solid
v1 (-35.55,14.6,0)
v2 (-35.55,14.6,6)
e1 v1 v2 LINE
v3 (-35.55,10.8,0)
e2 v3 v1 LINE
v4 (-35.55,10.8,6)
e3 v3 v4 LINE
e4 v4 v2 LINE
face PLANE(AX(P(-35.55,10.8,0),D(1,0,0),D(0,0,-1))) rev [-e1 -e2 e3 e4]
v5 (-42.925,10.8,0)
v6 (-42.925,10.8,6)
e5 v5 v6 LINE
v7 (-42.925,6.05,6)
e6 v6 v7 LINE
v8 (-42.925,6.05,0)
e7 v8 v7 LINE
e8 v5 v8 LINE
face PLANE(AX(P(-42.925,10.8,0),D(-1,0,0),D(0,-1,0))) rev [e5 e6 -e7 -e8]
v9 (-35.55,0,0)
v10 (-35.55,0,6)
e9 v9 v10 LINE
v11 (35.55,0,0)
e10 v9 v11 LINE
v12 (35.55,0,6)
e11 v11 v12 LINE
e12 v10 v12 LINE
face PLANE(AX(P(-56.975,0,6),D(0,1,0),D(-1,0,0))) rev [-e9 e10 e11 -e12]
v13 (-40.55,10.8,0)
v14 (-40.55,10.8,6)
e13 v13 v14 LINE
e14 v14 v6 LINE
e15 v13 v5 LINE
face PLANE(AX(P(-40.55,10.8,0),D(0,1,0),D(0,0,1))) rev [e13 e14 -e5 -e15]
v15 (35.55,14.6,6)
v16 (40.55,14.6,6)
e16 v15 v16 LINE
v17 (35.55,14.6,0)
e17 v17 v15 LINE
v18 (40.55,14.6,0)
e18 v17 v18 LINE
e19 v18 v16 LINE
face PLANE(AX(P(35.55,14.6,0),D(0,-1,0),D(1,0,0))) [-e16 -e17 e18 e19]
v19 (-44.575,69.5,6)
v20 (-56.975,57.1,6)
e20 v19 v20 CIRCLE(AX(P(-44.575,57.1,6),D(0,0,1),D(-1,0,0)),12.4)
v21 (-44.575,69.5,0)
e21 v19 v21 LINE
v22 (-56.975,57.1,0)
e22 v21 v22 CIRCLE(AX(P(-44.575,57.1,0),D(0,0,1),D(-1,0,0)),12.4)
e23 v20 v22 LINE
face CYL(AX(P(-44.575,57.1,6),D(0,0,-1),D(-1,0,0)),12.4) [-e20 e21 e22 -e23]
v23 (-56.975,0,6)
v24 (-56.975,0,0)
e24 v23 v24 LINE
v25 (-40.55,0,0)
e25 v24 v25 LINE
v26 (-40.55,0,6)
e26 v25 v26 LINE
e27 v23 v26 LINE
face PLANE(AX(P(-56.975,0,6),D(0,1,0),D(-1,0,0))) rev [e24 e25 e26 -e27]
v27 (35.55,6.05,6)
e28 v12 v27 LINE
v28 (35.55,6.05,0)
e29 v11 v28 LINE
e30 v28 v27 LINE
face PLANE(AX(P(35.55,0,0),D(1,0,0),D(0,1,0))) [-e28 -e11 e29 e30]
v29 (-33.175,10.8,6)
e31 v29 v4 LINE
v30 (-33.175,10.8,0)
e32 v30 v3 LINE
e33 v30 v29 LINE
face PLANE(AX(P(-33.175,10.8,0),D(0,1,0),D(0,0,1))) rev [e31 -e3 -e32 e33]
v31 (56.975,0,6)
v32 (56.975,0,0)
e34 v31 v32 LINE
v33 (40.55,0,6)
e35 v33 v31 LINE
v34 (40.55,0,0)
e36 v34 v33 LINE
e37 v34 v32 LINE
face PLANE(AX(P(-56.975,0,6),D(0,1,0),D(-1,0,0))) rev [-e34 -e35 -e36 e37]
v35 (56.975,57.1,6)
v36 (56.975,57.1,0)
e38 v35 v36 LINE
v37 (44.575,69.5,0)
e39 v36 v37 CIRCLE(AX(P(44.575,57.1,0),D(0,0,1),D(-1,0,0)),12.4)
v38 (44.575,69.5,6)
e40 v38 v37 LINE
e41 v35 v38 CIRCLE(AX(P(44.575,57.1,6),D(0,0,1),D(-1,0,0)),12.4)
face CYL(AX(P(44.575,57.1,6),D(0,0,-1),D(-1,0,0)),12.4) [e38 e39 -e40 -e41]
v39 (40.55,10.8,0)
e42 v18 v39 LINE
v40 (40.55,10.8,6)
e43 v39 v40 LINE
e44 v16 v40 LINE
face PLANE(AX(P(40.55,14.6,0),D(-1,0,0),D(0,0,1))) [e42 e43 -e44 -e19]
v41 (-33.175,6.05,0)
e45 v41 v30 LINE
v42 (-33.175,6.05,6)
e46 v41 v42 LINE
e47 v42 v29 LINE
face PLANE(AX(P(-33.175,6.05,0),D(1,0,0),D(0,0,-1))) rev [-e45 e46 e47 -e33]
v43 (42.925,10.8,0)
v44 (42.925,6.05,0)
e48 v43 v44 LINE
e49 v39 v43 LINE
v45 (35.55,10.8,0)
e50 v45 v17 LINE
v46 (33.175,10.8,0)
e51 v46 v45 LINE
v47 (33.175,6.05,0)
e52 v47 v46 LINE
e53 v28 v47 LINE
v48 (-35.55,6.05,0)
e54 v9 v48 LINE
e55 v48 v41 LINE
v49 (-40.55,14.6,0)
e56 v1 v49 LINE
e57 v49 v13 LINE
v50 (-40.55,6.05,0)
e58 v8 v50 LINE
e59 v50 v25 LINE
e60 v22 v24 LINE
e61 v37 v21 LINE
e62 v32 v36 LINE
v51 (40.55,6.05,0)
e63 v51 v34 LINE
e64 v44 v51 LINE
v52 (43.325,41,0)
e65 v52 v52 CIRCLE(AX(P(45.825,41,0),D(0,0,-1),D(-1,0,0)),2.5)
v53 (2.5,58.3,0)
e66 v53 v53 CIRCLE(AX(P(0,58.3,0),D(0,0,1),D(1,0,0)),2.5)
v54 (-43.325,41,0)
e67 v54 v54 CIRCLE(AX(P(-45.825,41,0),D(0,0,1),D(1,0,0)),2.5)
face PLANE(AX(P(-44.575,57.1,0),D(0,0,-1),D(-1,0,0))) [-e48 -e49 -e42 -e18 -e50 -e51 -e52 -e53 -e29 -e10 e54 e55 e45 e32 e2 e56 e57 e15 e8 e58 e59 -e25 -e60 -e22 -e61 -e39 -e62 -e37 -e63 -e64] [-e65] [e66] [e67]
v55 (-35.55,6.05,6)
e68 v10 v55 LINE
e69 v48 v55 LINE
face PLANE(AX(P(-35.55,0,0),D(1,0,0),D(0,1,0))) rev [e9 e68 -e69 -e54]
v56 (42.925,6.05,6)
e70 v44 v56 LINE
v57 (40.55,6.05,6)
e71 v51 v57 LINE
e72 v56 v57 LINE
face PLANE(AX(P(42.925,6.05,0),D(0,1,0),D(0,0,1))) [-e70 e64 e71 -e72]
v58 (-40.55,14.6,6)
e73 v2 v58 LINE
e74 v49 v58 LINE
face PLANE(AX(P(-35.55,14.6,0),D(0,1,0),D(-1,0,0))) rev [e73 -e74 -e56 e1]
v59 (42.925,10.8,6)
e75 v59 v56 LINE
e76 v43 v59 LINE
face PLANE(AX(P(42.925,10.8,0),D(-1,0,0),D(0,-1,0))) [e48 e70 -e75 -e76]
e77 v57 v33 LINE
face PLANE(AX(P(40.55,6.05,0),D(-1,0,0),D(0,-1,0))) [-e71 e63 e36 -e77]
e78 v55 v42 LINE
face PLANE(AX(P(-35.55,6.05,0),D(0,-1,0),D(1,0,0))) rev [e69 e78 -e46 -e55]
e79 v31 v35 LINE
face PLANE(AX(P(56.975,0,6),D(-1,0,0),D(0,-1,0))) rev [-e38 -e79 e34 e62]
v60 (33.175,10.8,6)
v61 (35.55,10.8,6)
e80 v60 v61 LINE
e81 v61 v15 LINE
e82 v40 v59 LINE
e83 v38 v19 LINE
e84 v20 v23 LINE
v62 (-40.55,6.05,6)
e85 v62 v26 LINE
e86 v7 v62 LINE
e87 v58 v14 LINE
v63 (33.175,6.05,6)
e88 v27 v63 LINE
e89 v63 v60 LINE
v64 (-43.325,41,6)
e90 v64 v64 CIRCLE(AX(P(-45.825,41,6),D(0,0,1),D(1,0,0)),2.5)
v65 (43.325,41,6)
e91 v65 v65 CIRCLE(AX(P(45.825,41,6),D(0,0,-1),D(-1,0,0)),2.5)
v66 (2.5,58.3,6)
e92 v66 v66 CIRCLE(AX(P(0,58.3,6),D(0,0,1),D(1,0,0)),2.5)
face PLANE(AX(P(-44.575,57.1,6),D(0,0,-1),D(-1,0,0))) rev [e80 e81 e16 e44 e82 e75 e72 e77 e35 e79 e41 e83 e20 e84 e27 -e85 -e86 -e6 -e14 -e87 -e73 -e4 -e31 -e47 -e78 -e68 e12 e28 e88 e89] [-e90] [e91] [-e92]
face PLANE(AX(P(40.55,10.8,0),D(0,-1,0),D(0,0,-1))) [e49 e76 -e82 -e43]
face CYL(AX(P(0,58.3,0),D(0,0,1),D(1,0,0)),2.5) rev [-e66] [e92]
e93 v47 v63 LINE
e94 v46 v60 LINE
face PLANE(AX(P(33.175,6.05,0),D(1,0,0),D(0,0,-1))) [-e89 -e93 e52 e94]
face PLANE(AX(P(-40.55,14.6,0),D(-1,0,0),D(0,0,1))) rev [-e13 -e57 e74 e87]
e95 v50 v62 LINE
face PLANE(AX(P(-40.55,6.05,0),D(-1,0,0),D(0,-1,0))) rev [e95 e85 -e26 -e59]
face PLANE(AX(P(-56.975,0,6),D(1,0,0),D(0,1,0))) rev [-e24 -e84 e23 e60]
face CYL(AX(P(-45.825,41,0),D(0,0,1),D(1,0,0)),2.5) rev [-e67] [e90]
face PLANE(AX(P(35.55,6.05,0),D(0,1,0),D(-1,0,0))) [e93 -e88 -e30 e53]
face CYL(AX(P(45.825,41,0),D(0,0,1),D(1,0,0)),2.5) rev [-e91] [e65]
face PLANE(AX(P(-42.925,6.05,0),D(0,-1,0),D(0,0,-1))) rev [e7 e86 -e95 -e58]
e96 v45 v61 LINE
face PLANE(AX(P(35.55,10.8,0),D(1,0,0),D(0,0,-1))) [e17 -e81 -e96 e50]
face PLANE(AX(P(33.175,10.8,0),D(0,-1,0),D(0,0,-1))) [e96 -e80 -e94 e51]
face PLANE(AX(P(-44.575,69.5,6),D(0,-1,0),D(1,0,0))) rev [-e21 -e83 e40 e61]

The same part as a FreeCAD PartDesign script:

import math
import FreeCAD as App
import Part
import Sketcher

V = App.Vector

doc = App.newDocument("Part")
body = doc.addObject("PartDesign::Body", "Body")

# Sketch on XY plane
sketch1 = body.newObject("Sketcher::SketchObject", "Sketch")
sketch1.AttachmentSupport = (doc.getObject("XY_Plane"), [""])
sketch1.MapMode = "FlatFace"
sketch1.addGeometry(Part.LineSegment(V(-57, 0, 0), V(57, 0, 0)), False)
sketch1.addGeometry(Part.LineSegment(V(57, 0, 0), V(57, 57, 0)), False)
sketch1.addGeometry(Part.ArcOfCircle(Part.Circle(V(45, 57, 0), V(0, 0, 1), 12), math.radians(0), math.radians(90)), False)
sketch1.addGeometry(Part.LineSegment(V(45, 70, 0), V(-45, 70, 0)), False)
sketch1.addGeometry(Part.ArcOfCircle(Part.Circle(V(-45, 57, 0), V(0, 0, 1), 12), math.radians(90), math.radians(180)), False)
sketch1.addGeometry(Part.LineSegment(V(-57, 57, 0), V(-57, 0, 0)), False)
sketch1.addConstraint(Sketcher.Constraint("Coincident", 0, 2, 1, 1))
sketch1.addConstraint(Sketcher.Constraint("Tangent", 1, 2, 2, 1))
sketch1.addConstraint(Sketcher.Constraint("Tangent", 2, 2, 3, 1))
sketch1.addConstraint(Sketcher.Constraint("Tangent", 3, 2, 4, 1))
sketch1.addConstraint(Sketcher.Constraint("Tangent", 4, 2, 5, 1))
sketch1.addConstraint(Sketcher.Constraint("Coincident", 5, 2, 0, 1))
sketch1.addConstraint(Sketcher.Constraint("Horizontal", 0))
sketch1.addConstraint(Sketcher.Constraint("Vertical", 1))
sketch1.addConstraint(Sketcher.Constraint("Horizontal", 3))
sketch1.addConstraint(Sketcher.Constraint("Vertical", 5))
sketch1.addConstraint(Sketcher.Constraint("Equal", 2, 4))
sketch1.addConstraint(Sketcher.Constraint("Symmetric", 0, 2, 5, 2, -1, 1))
sketch1.addConstraint(Sketcher.Constraint("Radius", 2, 12.4))
sketch1.addConstraint(Sketcher.Constraint("DistanceY", 1, 1, 1, 2, 57.1))
sketch1.addConstraint(Sketcher.Constraint("DistanceX", 0, 1, 0, 2, 113.95))
pad1 = body.newObject("PartDesign::Pad", "Pad")
pad1.Profile = sketch1
pad1.Length = 6

# Sketch on XY plane
sketch2 = body.newObject("Sketcher::SketchObject", "Sketch001")
sketch2.AttachmentSupport = (doc.getObject("XY_Plane"), [""])
sketch2.MapMode = "FlatFace"
sketch2.AttachmentOffset = App.Placement(V(0, 0, 6), App.Rotation())
sketch2.addGeometry(Part.LineSegment(V(-40.5, 0, 0), V(-35.5, 0, 0)), False)
sketch2.addGeometry(Part.LineSegment(V(-35.5, 0, 0), V(-35.5, 6, 0)), False)
sketch2.addGeometry(Part.LineSegment(V(-35.5, 6, 0), V(-33.2, 6, 0)), False)
sketch2.addGeometry(Part.LineSegment(V(-33.2, 6, 0), V(-33.2, 10.8, 0)), False)
sketch2.addGeometry(Part.LineSegment(V(-33.2, 10.8, 0), V(-35.5, 10.8, 0)), False)
sketch2.addGeometry(Part.LineSegment(V(-35.5, 10.8, 0), V(-35.5, 14.6, 0)), False)
sketch2.addGeometry(Part.LineSegment(V(-35.5, 14.6, 0), V(-40.5, 14.6, 0)), False)
sketch2.addGeometry(Part.LineSegment(V(-40.5, 14.6, 0), V(-40.5, 10.8, 0)), False)
sketch2.addGeometry(Part.LineSegment(V(-40.5, 10.8, 0), V(-42.9, 10.8, 0)), False)
sketch2.addGeometry(Part.LineSegment(V(-42.9, 10.8, 0), V(-42.9, 6, 0)), False)
sketch2.addGeometry(Part.LineSegment(V(-42.9, 6, 0), V(-40.5, 6, 0)), False)
sketch2.addGeometry(Part.LineSegment(V(-40.5, 6, 0), V(-40.5, 0, 0)), False)
sketch2.addConstraint(Sketcher.Constraint("Coincident", 0, 2, 1, 1))
sketch2.addConstraint(Sketcher.Constraint("Coincident", 1, 2, 2, 1))
sketch2.addConstraint(Sketcher.Constraint("Coincident", 2, 2, 3, 1))
sketch2.addConstraint(Sketcher.Constraint("Coincident", 3, 2, 4, 1))
sketch2.addConstraint(Sketcher.Constraint("Coincident", 4, 2, 5, 1))
sketch2.addConstraint(Sketcher.Constraint("Coincident", 5, 2, 6, 1))
sketch2.addConstraint(Sketcher.Constraint("Coincident", 6, 2, 7, 1))
sketch2.addConstraint(Sketcher.Constraint("Coincident", 7, 2, 8, 1))
sketch2.addConstraint(Sketcher.Constraint("Coincident", 8, 2, 9, 1))
sketch2.addConstraint(Sketcher.Constraint("Coincident", 9, 2, 10, 1))
sketch2.addConstraint(Sketcher.Constraint("Coincident", 10, 2, 11, 1))
sketch2.addConstraint(Sketcher.Constraint("Coincident", 11, 2, 0, 1))
sketch2.addConstraint(Sketcher.Constraint("Horizontal", 0))
sketch2.addConstraint(Sketcher.Constraint("Vertical", 1))
sketch2.addConstraint(Sketcher.Constraint("Horizontal", 2))
sketch2.addConstraint(Sketcher.Constraint("Vertical", 3))
sketch2.addConstraint(Sketcher.Constraint("Horizontal", 4))
sketch2.addConstraint(Sketcher.Constraint("Vertical", 5))
sketch2.addConstraint(Sketcher.Constraint("Horizontal", 6))
sketch2.addConstraint(Sketcher.Constraint("Vertical", 7))
sketch2.addConstraint(Sketcher.Constraint("Horizontal", 8))
sketch2.addConstraint(Sketcher.Constraint("Vertical", 9))
sketch2.addConstraint(Sketcher.Constraint("Horizontal", 10))
sketch2.addConstraint(Sketcher.Constraint("Vertical", 11))
sketch2.addConstraint(Sketcher.Constraint("PointOnObject", 0, 2, -1))
sketch2.addConstraint(Sketcher.Constraint("Horizontal", 4, 2, 7, 2))
sketch2.addConstraint(Sketcher.Constraint("Horizontal", 2, 2, 9, 2))
sketch2.addConstraint(Sketcher.Constraint("Vertical", 1, 2, 4, 2))
sketch2.addConstraint(Sketcher.Constraint("Vertical", 7, 2, 10, 2))
sketch2.addConstraint(Sketcher.Constraint("Equal", 4, 8))
sketch2.addConstraint(Sketcher.Constraint("DistanceX", 0, 1, 0, 2, 5.0))
sketch2.addConstraint(Sketcher.Constraint("DistanceY", 5, 1, 5, 2, 3.8))
sketch2.addConstraint(Sketcher.Constraint("DistanceY", 1, 1, 1, 2, 6.05))
sketch2.addConstraint(Sketcher.Constraint("DistanceY", 3, 1, 3, 2, 4.75))
sketch2.addConstraint(Sketcher.Constraint("DistanceX", 2, 1, 2, 2, 2.375))
sketch2.addConstraint(Sketcher.Constraint("DistanceX", 0, 2, -1, 1, 35.55))
pocket1 = body.newObject("PartDesign::Pocket", "Pocket")
pocket1.Profile = sketch2
pocket1.Type = "ThroughAll"

# Sketch on XY plane
sketch3 = body.newObject("Sketcher::SketchObject", "Sketch002")
sketch3.AttachmentSupport = (doc.getObject("XY_Plane"), [""])
sketch3.MapMode = "FlatFace"
sketch3.AttachmentOffset = App.Placement(V(0, 0, 6), App.Rotation())
sketch3.addGeometry(Part.Circle(V(-45.8, 41, 0), V(0, 0, 1), 2.5), False)
sketch3.addConstraint(Sketcher.Constraint("Diameter", 0, 5.0))
sketch3.addConstraint(Sketcher.Constraint("DistanceY", -1, 1, 0, 3, 41.0))
sketch3.addConstraint(Sketcher.Constraint("DistanceX", 0, 3, -1, 1, 45.825))
pocket2 = body.newObject("PartDesign::Pocket", "Pocket001")
pocket2.Profile = sketch3
pocket2.Type = "ThroughAll"

# Sketch on XY plane
sketch4 = body.newObject("Sketcher::SketchObject", "Sketch003")
sketch4.AttachmentSupport = (doc.getObject("XY_Plane"), [""])
sketch4.MapMode = "FlatFace"
sketch4.AttachmentOffset = App.Placement(V(0, 0, 6), App.Rotation())
sketch4.addGeometry(Part.Circle(V(0, 58.3, 0), V(0, 0, 1), 2.5), False)
sketch4.addConstraint(Sketcher.Constraint("PointOnObject", 0, 3, -2))
sketch4.addConstraint(Sketcher.Constraint("Diameter", 0, 5.0))
sketch4.addConstraint(Sketcher.Constraint("DistanceY", -1, 1, 0, 3, 58.3))
pocket3 = body.newObject("PartDesign::Pocket", "Pocket002")
pocket3.Profile = sketch4
pocket3.Type = "ThroughAll"
doc.recompute()

mirrored = body.newObject("PartDesign::Mirrored", "Mirrored")
mirrored.Originals = [pocket1, pocket2]
mirrored.MirrorPlane = (doc.getObject("YZ_Plane"), [""])
body.Tip = mirrored

doc.recompute()
